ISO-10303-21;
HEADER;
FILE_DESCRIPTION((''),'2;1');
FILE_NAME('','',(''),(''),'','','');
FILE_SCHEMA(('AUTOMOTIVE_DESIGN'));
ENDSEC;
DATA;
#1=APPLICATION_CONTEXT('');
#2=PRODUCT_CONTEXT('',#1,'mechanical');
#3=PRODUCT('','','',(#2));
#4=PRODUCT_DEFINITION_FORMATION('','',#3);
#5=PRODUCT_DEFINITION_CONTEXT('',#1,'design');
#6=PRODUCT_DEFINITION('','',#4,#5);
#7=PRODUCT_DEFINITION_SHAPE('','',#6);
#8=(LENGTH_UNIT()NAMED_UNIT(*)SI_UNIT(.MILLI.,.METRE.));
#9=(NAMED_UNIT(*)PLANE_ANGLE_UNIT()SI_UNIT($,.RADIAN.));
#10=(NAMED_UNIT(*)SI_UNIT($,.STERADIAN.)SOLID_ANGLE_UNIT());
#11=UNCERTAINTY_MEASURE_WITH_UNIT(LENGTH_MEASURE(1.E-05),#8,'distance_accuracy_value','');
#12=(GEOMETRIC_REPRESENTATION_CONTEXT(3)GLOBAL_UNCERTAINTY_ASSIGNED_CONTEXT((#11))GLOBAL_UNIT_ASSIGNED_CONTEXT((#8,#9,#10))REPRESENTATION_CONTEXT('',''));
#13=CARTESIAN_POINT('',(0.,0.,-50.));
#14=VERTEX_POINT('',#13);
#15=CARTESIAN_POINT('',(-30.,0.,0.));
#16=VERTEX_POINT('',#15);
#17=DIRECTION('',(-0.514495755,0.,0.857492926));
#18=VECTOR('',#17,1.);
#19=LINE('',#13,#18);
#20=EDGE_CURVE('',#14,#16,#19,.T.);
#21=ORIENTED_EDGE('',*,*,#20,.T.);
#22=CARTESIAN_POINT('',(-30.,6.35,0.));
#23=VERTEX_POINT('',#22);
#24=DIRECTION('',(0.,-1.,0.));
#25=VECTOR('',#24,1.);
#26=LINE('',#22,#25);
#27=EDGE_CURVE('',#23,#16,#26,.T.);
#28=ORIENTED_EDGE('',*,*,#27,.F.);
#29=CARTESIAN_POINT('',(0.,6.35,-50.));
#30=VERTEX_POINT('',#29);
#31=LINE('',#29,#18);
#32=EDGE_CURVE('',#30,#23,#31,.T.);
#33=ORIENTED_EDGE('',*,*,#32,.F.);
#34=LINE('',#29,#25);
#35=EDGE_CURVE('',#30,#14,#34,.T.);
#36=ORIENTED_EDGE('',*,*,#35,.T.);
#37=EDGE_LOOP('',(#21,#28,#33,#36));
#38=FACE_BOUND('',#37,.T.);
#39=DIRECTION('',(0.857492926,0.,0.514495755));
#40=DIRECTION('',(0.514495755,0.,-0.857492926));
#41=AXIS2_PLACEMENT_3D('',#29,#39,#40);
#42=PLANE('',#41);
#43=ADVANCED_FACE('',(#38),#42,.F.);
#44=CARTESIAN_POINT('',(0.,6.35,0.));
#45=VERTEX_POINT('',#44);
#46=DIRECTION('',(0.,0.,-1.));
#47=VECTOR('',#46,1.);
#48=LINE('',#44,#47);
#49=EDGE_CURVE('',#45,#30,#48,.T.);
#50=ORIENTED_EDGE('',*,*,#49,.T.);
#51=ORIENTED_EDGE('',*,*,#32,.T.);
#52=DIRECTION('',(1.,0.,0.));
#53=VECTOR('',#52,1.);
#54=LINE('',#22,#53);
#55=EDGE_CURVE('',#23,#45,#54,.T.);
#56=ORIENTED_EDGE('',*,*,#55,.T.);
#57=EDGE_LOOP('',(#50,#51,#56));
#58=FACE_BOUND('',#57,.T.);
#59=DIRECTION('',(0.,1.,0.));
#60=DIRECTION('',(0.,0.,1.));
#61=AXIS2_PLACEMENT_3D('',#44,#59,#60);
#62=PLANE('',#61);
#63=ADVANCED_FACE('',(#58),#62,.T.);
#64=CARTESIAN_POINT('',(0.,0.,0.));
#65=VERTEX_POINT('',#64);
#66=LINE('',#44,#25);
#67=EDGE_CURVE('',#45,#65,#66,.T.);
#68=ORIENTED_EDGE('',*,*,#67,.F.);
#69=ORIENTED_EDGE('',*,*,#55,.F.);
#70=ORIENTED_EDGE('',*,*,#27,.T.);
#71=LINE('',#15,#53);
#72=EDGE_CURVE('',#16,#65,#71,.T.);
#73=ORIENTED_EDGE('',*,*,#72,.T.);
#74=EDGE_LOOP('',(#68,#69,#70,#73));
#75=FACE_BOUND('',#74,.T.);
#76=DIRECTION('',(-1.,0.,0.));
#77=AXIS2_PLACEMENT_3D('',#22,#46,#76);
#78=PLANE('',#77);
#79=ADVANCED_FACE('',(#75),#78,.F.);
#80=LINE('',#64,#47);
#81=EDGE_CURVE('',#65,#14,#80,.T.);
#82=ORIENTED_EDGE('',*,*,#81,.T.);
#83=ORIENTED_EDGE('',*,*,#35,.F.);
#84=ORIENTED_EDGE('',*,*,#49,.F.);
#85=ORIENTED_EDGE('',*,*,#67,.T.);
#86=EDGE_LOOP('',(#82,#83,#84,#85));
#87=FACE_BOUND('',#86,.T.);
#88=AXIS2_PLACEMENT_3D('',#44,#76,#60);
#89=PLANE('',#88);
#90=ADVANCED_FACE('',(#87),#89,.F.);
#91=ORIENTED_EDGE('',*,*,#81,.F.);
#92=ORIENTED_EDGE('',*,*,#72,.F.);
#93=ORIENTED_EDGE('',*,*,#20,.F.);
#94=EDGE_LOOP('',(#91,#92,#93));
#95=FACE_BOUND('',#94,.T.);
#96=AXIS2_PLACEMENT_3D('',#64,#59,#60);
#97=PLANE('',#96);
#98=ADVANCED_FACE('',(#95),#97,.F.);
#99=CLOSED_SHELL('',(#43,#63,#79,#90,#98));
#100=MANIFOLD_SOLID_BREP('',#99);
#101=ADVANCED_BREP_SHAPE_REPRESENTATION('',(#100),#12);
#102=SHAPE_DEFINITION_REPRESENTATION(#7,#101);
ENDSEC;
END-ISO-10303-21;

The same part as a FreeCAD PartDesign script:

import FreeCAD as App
import Part
import Sketcher


def add_polygon(sketch, points):
    """Adds a closed chain of lines whose ends are joined by coincident constraints."""
    first, n = sketch.GeometryCount, len(points)
    for a, b in zip(points, points[1:] + points[:1]):
        sketch.addGeometry(Part.LineSegment(App.Vector(*a, 0), App.Vector(*b, 0)), False)
    for i in range(n):
        sketch.addConstraint(Sketcher.Constraint("Coincident", first + i, 2, first + (i + 1) % n, 1))

doc = App.newDocument("Part")
body = doc.addObject("PartDesign::Body", "Body")

sketch1 = body.newObject("Sketcher::SketchObject", "Sketch")
sketch1.AttachmentSupport = (doc.getObject("XZ_Plane"), [""])
sketch1.MapMode = "FlatFace"
add_polygon(sketch1, [(-30, 0), (0, 0), (0, -50)])
sketch1.addConstraint([
    Sketcher.Constraint("Horizontal", 0),
    Sketcher.Constraint("Vertical", 1),
    Sketcher.Constraint("Coincident", 0, 2, -1, 1),
    Sketcher.Constraint("DistanceX", 0, 1, 0, 2, 30.0),
    Sketcher.Constraint("DistanceY", 1, 2, 1, 1, 50.0),
])
pad1 = body.newObject("PartDesign::Pad", "Pad")
pad1.Profile = sketch1
pad1.Length = 6.35
pad1.Reversed = True

doc.recompute()
